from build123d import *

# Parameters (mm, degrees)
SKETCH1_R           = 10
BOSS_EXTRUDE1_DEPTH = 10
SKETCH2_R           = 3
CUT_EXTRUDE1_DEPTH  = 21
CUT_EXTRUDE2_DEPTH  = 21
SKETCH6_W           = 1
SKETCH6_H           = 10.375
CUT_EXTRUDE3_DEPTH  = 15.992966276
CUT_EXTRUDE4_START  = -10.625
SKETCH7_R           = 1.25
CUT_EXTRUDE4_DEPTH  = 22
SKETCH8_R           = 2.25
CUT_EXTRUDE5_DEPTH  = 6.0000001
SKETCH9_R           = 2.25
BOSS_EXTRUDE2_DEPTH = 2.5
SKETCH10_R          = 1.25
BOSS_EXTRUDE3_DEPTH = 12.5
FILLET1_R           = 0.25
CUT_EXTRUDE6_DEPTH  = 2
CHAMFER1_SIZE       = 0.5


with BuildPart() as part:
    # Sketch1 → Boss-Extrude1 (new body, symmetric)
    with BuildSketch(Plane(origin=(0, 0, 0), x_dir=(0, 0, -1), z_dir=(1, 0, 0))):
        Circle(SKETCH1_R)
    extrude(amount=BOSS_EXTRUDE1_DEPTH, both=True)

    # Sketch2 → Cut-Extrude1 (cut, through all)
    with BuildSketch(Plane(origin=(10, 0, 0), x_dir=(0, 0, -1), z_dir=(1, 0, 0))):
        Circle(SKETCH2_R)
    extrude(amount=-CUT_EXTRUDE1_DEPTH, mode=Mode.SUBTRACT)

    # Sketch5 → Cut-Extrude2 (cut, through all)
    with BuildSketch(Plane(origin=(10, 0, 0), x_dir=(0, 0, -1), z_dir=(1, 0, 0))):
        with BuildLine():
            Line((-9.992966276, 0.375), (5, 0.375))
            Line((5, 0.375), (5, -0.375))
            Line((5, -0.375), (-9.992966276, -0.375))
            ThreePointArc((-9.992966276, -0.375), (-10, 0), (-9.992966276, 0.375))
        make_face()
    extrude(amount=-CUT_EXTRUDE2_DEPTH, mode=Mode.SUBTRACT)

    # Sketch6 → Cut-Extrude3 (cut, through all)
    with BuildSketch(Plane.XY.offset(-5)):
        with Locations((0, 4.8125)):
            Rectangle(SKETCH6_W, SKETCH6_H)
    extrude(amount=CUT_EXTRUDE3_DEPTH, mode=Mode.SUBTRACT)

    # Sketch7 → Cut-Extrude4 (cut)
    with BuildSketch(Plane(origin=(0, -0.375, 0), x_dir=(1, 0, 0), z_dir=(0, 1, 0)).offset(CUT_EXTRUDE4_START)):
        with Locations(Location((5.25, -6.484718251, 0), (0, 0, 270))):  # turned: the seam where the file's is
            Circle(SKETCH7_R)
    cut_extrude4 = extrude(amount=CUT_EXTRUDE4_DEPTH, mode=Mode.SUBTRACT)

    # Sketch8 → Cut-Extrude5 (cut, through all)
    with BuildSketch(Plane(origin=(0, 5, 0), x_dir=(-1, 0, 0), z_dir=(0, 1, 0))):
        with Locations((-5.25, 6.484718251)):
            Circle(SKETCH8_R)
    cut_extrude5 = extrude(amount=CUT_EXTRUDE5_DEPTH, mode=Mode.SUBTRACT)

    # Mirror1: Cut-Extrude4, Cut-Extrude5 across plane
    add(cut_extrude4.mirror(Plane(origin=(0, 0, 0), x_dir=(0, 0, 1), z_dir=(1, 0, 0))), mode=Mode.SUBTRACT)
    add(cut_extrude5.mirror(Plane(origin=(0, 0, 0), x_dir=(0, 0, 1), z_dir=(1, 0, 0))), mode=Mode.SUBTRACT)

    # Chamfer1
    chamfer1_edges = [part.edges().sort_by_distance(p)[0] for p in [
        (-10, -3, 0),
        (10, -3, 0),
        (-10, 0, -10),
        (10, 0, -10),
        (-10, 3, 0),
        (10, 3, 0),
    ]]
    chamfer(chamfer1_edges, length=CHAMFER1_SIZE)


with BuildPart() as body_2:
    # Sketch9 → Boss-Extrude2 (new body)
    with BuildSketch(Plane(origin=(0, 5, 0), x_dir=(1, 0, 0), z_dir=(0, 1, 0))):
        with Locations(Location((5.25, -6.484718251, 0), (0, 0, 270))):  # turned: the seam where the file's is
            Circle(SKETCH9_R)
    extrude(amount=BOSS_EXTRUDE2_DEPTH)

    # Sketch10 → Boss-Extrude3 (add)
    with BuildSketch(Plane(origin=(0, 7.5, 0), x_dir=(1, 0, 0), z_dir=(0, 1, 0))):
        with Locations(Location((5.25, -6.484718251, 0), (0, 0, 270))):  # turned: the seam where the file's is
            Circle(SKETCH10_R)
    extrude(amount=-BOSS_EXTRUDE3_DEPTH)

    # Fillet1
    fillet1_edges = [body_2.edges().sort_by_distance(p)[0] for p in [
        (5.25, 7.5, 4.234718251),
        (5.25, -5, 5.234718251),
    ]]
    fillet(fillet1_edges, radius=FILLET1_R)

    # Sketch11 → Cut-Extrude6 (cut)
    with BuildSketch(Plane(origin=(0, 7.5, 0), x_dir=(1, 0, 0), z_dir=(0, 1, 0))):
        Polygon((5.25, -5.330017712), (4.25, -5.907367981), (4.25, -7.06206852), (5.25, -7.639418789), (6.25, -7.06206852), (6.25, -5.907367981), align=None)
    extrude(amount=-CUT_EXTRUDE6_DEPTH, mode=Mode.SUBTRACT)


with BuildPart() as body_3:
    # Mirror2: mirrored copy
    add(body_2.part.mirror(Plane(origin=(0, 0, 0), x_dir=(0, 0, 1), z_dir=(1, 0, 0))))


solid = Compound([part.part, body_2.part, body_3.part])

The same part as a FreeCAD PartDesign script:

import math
import FreeCAD as App
import Part
import Sketcher
from FreeCAD import Vector
Q = App.Units.Quantity


def edges_at(feature, points):
    """Names of the edges that pass closest to the given points."""
    edges = feature.Shape.Edges
    near = lambda p: min(range(len(edges)), key=lambda i: edges[i].distToShape(Part.Vertex(*p))[0])
    return sorted({f"Edge{near(p) + 1}" for p in points})


def add_polygon(sketch, points):
    """Adds a closed chain of lines whose ends are joined by coincident constraints."""
    first, n = sketch.GeometryCount, len(points)
    for a, b in zip(points, points[1:] + points[:1]):
        sketch.addGeometry(Part.LineSegment(App.Vector(*a, 0), App.Vector(*b, 0)), False)
    for i in range(n):
        sketch.addConstraint(Sketcher.Constraint("Coincident", first + i, 2, first + (i + 1) % n, 1))

doc = App.newDocument("Part")
body = doc.addObject("PartDesign::Body", "Body")

sketch1 = doc.addObject("Sketcher::SketchObject", "Sketch")
body.addObject(sketch1)
sketch1.AttachmentSupport = (doc.YZ_Plane, [""])
sketch1.MapMode = "FlatFace"
sketch1.addGeometry(Part.Circle(Vector(0, 0, 0), Vector(0, 0, 1), 10), False)
sketch1.addConstraint([
    Sketcher.Constraint("Coincident", 0, 3, -1, 1),
    Sketcher.Constraint("Diameter", 0, Q("20 mm")),
])
pad1 = doc.addObject("PartDesign::Pad", "Pad")
body.addObject(pad1)
pad1.Profile = sketch1
pad1.Length = 20
pad1.Midplane = True

sketch2 = doc.addObject("Sketcher::SketchObject", "Sketch001")
body.addObject(sketch2)
sketch2.AttachmentSupport = (doc.YZ_Plane, [""])
sketch2.MapMode = "FlatFace"
sketch2.AttachmentOffset = App.Placement(Vector(0, 0, 10), App.Rotation())
sketch2.addGeometry(Part.Circle(Vector(0, 0, 0), Vector(0, 0, 1), 3), False)
sketch2.addConstraint([
    Sketcher.Constraint("Coincident", 0, 3, -1, 1),
    Sketcher.Constraint("Diameter", 0, Q("6 mm")),
])
pocket1 = doc.addObject("PartDesign::Pocket", "Pocket")
body.addObject(pocket1)
pocket1.Profile = sketch2
pocket1.Type = "ThroughAll"

sketch3 = doc.addObject("Sketcher::SketchObject", "Sketch002")
body.addObject(sketch3)
sketch3.AttachmentSupport = (doc.YZ_Plane, [""])
sketch3.MapMode = "FlatFace"
sketch3.AttachmentOffset = App.Placement(Vector(0, 0, 10), App.Rotation())
sketch3.addGeometry([
    Part.LineSegment(Vector(0.375, -5, 0), Vector(0.375, 9.992966, 0)),
    Part.ArcOfCircle(Part.Circle(Vector(0, 0, 0), Vector(0, 0, 1), 10), math.radians(87.850904), math.radians(92.149096)),
    Part.LineSegment(Vector(-0.375, 9.992966, 0), Vector(-0.375, -5, 0)),
    Part.LineSegment(Vector(-0.375, -5, 0), Vector(0.375, -5, 0)),
], False)
sketch3.addConstraint([
    Sketcher.Constraint("Coincident", 0, 2, 1, 1),
    Sketcher.Constraint("Coincident", 1, 2, 2, 1),
    Sketcher.Constraint("Coincident", 2, 2, 3, 1),
    Sketcher.Constraint("Coincident", 3, 2, 0, 1),
    Sketcher.Constraint("Vertical", 0),
    Sketcher.Constraint("Vertical", 2),
    Sketcher.Constraint("Horizontal", 3),
    Sketcher.Constraint("Coincident", 1, 3, -1, 1),
    Sketcher.Constraint("Horizontal", 0, 2, 1, 2),
    Sketcher.Constraint("Radius", 1, Q("10 mm")),
    Sketcher.Constraint("DistanceY", 2, 2, -1, 1, Q("5 mm")),
    Sketcher.Constraint("DistanceX", 3, 1, 3, 2, Q("0.75 mm")),
])
pocket2 = doc.addObject("PartDesign::Pocket", "Pocket001")
body.addObject(pocket2)
pocket2.Profile = sketch3
pocket2.Type = "ThroughAll"

sketch4 = doc.addObject("Sketcher::SketchObject", "Sketch003")
body.addObject(sketch4)
sketch4.AttachmentSupport = (doc.XY_Plane, [""])
sketch4.MapMode = "FlatFace"
sketch4.AttachmentOffset = App.Placement(Vector(0, 0, -5), App.Rotation())
add_polygon(sketch4, [(-0.5, 10), (-0.5, -0.375), (0.5, -0.375), (0.5, 10)])
sketch4.addConstraint([
    Sketcher.Constraint("Vertical", 0),
    Sketcher.Constraint("Horizontal", 1),
    Sketcher.Constraint("Vertical", 2),
    Sketcher.Constraint("Horizontal", 3),
    Sketcher.Constraint("DistanceX", 1, 1, 1, 2, Q("1 mm")),
    Sketcher.Constraint("DistanceY", -1, 1, 2, 2, Q("10 mm")),
    Sketcher.Constraint("DistanceX", 0, 2, -1, 1, Q("0.5 mm")),
    Sketcher.Constraint("DistanceY", 0, 2, 0, 1, Q("10.375 mm")),
])
pocket3 = doc.addObject("PartDesign::Pocket", "Pocket002")
body.addObject(pocket3)
pocket3.Profile = sketch4
pocket3.Type = "ThroughAll"
pocket3.Reversed = True

sketch5 = doc.addObject("Sketcher::SketchObject", "Sketch004")
body.addObject(sketch5)
sketch5.AttachmentSupport = (doc.XZ_Plane, [""])
sketch5.MapMode = "FlatFace"
sketch5.AttachmentOffset = App.Placement(Vector(0, 0, 11), App.Rotation())
sketch5.addGeometry(Part.Circle(Vector(5.25, 6.484718, 0), Vector(0, 0, 1), 1.25), False)
sketch5.addConstraint([
    Sketcher.Constraint("Diameter", 0, Q("2.5 mm")),
    Sketcher.Constraint("DistanceX", -1, 1, 0, 3, Q("5.25 mm")),
    Sketcher.Constraint("DistanceY", -1, 1, 0, 3, Q("6.484718 mm")),
])
pocket4 = doc.addObject("PartDesign::Pocket", "Pocket003")
body.addObject(pocket4)
pocket4.Profile = sketch5
pocket4.Length = 22

sketch6 = doc.addObject("Sketcher::SketchObject", "Sketch005")
body.addObject(sketch6)
sketch6.AttachmentSupport = (doc.XZ_Plane, [""])
sketch6.MapMode = "FlatFace"
sketch6.AttachmentOffset = App.Placement(Vector(0, 0, -5), App.Rotation())
sketch6.addGeometry(Part.Circle(Vector(5.25, 6.484718, 0), Vector(0, 0, 1), 2.25), False)
sketch6.addConstraint([
    Sketcher.Constraint("Diameter", 0, Q("4.5 mm")),
    Sketcher.Constraint("DistanceX", -1, 1, 0, 3, Q("5.25 mm")),
    Sketcher.Constraint("DistanceY", -1, 1, 0, 3, Q("6.484718 mm")),
])
pocket5 = doc.addObject("PartDesign::Pocket", "Pocket004")
body.addObject(pocket5)
pocket5.Profile = sketch6
pocket5.Type = "ThroughAll"
doc.recompute()

mirrored = doc.addObject("PartDesign::Mirrored", "Mirrored")
body.addObject(mirrored)
mirrored.Originals = [pocket4, pocket5]
mirrored.MirrorPlane = (doc.YZ_Plane, [""])
body.Tip = mirrored
doc.recompute()

chamfer = doc.addObject("PartDesign::Chamfer", "Chamfer")
body.addObject(chamfer)
chamfer.Base = (mirrored, edges_at(mirrored, [
    (-10, -3, 0),
    (10, -3, 0),
    (-10, 0, -10),
    (10, 0, -10),
    (-10, 3, 0),
    (10, 3, 0),
]))
chamfer.Size = 0.5
body2 = doc.addObject("PartDesign::Body", "Body001")

sketch7 = doc.addObject("Sketcher::SketchObject", "Sketch006")
body2.addObject(sketch7)
sketch7.AttachmentSupport = (doc.getObject("XZ_Plane001"), [""])
sketch7.MapMode = "FlatFace"
sketch7.AttachmentOffset = App.Placement(Vector(0, 0, -5), App.Rotation())
sketch7.addGeometry(Part.Circle(Vector(5.25, 6.484718, 0), Vector(0, 0, 1), 2.25), False)
sketch7.addConstraint([
    Sketcher.Constraint("Diameter", 0, Q("4.5 mm")),
    Sketcher.Constraint("DistanceX", -1, 1, 0, 3, Q("5.25 mm")),
    Sketcher.Constraint("DistanceY", -1, 1, 0, 3, Q("6.484718 mm")),
])
pad2 = doc.addObject("PartDesign::Pad", "Pad001")
body2.addObject(pad2)
pad2.Profile = sketch7
pad2.Length = 2.5
pad2.Reversed = True

sketch8 = doc.addObject("Sketcher::SketchObject", "Sketch007")
body2.addObject(sketch8)
sketch8.AttachmentSupport = (doc.getObject("XZ_Plane001"), [""])
sketch8.MapMode = "FlatFace"
sketch8.AttachmentOffset = App.Placement(Vector(0, 0, -7.5), App.Rotation())
sketch8.addGeometry(Part.Circle(Vector(5.25, 6.484718, 0), Vector(0, 0, 1), 1.25), False)
sketch8.addConstraint([
    Sketcher.Constraint("Diameter", 0, Q("2.5 mm")),
    Sketcher.Constraint("DistanceX", -1, 1, 0, 3, Q("5.25 mm")),
    Sketcher.Constraint("DistanceY", -1, 1, 0, 3, Q("6.484718 mm")),
])
pad3 = doc.addObject("PartDesign::Pad", "Pad002")
body2.addObject(pad3)
pad3.Profile = sketch8
pad3.Length = 12.5
doc.recompute()

fillet = doc.addObject("PartDesign::Fillet", "Fillet")
body2.addObject(fillet)
fillet.Base = (pad3, edges_at(pad3, [(5.25, 7.5, 4.235), (5.25, -5, 5.235)]))
fillet.Radius = 0.25

sketch9 = doc.addObject("Sketcher::SketchObject", "Sketch008")
body2.addObject(sketch9)
sketch9.AttachmentSupport = (doc.getObject("XZ_Plane001"), [""])
sketch9.MapMode = "FlatFace"
sketch9.AttachmentOffset = App.Placement(Vector(0, 0, -7.5), App.Rotation())
add_polygon(sketch9, [(5.25, 5.330018), (4.25, 5.907368), (4.25, 7.062069), (5.25, 7.639419), (6.25, 7.062069), (6.25, 5.907368)])
sketch9.addConstraint([
    Sketcher.Constraint("Vertical", 1),
    Sketcher.Constraint("Vertical", 4),
    Sketcher.Constraint("Parallel", 0, 3),
    Sketcher.Constraint("Parallel", 2, 5),
    Sketcher.Constraint("Horizontal", 1, 2, 3, 2),
    Sketcher.Constraint("Horizontal", 0, 2, 4, 2),
    Sketcher.Constraint("Vertical", 2, 2, 5, 2),
    Sketcher.Constraint("Angle", 0, Q("150 deg")),
    Sketcher.Constraint("DistanceX", 1, 2, 2, 2, Q("1 mm")),
    Sketcher.Constraint("DistanceX", -1, 1, 0, 2, Q("4.25 mm")),
    Sketcher.Constraint("DistanceY", 1, 1, 1, 2, Q("1.154701 mm")),
    Sketcher.Constraint("DistanceY", -1, 1, 1, 2, Q("7.062069 mm")),
])
pocket6 = doc.addObject("PartDesign::Pocket", "Pocket005")
body2.addObject(pocket6)
pocket6.Profile = sketch9
pocket6.Length = 2
pocket6.Reversed = True
body3 = doc.addObject("PartDesign::Body", "Body002")
doc.recompute()

mirroring = doc.addObject("Part::Mirroring", "Mirroring")
mirroring.Source = body2
mirroring.Base = Vector(0, 0, 0)
mirroring.Normal = Vector(1, 0, 0)
body3.BaseFeature = mirroring
doc.recompute()
mirroring.Visibility = False

doc.recompute()
